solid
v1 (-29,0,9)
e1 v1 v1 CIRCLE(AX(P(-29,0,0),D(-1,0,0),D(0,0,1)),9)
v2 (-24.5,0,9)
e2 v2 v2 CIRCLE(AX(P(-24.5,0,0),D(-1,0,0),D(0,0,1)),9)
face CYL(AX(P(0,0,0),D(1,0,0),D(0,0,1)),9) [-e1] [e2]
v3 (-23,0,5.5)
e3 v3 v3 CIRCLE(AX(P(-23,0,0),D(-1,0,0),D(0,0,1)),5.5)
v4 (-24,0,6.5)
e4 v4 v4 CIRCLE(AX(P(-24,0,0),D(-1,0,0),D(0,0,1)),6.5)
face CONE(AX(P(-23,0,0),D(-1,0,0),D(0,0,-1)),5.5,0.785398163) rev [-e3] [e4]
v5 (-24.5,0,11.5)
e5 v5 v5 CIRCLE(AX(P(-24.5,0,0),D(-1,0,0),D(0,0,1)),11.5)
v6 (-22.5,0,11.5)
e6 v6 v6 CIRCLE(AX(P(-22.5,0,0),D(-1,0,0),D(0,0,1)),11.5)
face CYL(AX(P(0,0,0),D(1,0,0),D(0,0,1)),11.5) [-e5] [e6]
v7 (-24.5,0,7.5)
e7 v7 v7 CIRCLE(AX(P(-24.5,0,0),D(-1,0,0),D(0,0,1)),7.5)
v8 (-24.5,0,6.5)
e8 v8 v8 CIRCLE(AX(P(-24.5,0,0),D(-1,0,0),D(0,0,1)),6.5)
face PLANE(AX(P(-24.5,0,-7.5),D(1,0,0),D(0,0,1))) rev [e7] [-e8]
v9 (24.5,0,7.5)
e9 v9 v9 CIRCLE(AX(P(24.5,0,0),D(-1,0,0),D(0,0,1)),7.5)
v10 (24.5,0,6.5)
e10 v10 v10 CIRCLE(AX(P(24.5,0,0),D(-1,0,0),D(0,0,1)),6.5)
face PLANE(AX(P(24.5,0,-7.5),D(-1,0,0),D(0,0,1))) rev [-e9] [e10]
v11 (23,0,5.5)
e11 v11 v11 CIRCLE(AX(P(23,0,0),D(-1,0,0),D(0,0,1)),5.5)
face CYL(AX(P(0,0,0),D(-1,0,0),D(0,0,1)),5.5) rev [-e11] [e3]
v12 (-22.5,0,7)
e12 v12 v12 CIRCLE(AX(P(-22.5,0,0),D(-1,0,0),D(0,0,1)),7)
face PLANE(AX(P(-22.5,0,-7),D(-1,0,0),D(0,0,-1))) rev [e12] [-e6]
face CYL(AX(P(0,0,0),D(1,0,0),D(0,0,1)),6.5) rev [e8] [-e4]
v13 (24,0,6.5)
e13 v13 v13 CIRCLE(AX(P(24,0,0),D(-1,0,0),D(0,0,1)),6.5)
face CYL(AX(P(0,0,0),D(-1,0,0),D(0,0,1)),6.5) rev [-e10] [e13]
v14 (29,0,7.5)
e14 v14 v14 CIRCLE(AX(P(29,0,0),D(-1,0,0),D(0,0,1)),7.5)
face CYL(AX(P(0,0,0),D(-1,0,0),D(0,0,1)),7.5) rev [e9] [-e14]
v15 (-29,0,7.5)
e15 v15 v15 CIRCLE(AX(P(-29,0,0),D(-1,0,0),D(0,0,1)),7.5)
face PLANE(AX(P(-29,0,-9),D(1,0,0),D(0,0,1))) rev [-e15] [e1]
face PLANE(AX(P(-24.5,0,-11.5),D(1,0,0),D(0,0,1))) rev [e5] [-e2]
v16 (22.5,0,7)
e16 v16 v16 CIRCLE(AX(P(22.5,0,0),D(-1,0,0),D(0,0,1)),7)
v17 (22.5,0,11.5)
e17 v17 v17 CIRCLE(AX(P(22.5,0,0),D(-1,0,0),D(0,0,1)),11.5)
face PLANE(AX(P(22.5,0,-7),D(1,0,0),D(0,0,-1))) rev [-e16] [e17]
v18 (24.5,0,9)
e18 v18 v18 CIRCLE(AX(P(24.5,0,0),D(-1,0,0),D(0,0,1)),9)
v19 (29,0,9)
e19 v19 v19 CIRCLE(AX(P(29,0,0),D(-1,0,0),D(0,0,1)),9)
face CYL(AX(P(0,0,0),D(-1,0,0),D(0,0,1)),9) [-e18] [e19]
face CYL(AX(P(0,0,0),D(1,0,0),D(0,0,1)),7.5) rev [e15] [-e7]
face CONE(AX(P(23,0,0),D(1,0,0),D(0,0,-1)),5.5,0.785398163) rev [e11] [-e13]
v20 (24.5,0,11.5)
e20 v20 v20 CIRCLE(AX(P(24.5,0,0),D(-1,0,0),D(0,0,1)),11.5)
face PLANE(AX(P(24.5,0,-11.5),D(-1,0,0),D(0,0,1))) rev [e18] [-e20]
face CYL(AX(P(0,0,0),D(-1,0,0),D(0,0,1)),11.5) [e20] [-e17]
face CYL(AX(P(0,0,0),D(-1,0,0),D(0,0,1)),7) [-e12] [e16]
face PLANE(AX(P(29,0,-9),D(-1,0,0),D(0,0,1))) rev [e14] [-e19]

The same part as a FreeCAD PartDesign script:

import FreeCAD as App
import Part
import Sketcher
Q = App.Units.Quantity


def add_polygon(sketch, points):
    """Adds a closed chain of lines whose ends are joined by coincident constraints."""
    first, n = sketch.GeometryCount, len(points)
    for a, b in zip(points, points[1:] + points[:1]):
        sketch.addGeometry(Part.LineSegment(App.Vector(*a, 0), App.Vector(*b, 0)), False)
    for i in range(n):
        sketch.addConstraint(Sketcher.Constraint("Coincident", first + i, 2, first + (i + 1) % n, 1))

doc = App.newDocument("Part")
body = doc.addObject("PartDesign::Body", "Body")

# Sketch on XZ plane
sketch1 = body.newObject("Sketcher::SketchObject", "Sketch")
sketch1.AttachmentSupport = (doc.getObject("XZ_Plane"), [""])
sketch1.MapMode = "FlatFace"
add_polygon(sketch1, [(22.5, -7), (0, -7), (0, -5.5), (23, -5.5), (24, -6.5), (24.5, -6.5), (24.5, -7.5), (29, -7.5), (29, -9), (24.5, -9), (24.5, -11.5), (22.5, -11.5)])  # lines 0-11
sketch1.addConstraint([
    Sketcher.Constraint("Horizontal", 0),
    Sketcher.Constraint("Vertical", 1),
    Sketcher.Constraint("Horizontal", 2),
    Sketcher.Constraint("Horizontal", 4),
    Sketcher.Constraint("Vertical", 5),
    Sketcher.Constraint("Horizontal", 6),
    Sketcher.Constraint("Vertical", 7),
    Sketcher.Constraint("Horizontal", 8),
    Sketcher.Constraint("Vertical", 9),
    Sketcher.Constraint("Horizontal", 10),
    Sketcher.Constraint("Vertical", 11),
    Sketcher.Constraint("PointOnObject", 0, 2, -2),
    Sketcher.Constraint("Vertical", 5, 2, 8, 2),
    Sketcher.Constraint("Equal", 1, 7),
    Sketcher.Constraint("Equal", 8, 11),
    Sketcher.Constraint("DistanceX", 2, 1, 2, 2, Q("23 mm")),
    Sketcher.Constraint("DistanceX", 10, 2, 10, 1, Q("2 mm")),
    Sketcher.Constraint("DistanceY", 5, 2, 5, 1, Q("1 mm")),
    Sketcher.Constraint("Angle", 3, Q("-45 deg")),
    Sketcher.Constraint("DistanceX", 0, 2, 0, 1, Q("22.5 mm")),
    Sketcher.Constraint("DistanceX", 4, 1, 4, 2, Q("0.5 mm")),
    Sketcher.Constraint("DistanceX", 6, 1, 6, 2, Q("4.5 mm")),
    Sketcher.Constraint("DistanceY", 1, 1, 1, 2, Q("1.5 mm")),
    Sketcher.Constraint("DistanceY", 0, 2, -1, 1, Q("7 mm")),
])
revolution = body.newObject("PartDesign::Revolution", "Revolution")
revolution.Profile = sketch1
revolution.ReferenceAxis = (sketch1, ["H_Axis"])
revolution.Angle = 360
doc.recompute()

mirrored = body.newObject("PartDesign::Mirrored", "Mirrored")
mirrored.Originals = [revolution]
mirrored.MirrorPlane = (doc.getObject("YZ_Plane"), [""])
body.Tip = mirrored

doc.recompute()
